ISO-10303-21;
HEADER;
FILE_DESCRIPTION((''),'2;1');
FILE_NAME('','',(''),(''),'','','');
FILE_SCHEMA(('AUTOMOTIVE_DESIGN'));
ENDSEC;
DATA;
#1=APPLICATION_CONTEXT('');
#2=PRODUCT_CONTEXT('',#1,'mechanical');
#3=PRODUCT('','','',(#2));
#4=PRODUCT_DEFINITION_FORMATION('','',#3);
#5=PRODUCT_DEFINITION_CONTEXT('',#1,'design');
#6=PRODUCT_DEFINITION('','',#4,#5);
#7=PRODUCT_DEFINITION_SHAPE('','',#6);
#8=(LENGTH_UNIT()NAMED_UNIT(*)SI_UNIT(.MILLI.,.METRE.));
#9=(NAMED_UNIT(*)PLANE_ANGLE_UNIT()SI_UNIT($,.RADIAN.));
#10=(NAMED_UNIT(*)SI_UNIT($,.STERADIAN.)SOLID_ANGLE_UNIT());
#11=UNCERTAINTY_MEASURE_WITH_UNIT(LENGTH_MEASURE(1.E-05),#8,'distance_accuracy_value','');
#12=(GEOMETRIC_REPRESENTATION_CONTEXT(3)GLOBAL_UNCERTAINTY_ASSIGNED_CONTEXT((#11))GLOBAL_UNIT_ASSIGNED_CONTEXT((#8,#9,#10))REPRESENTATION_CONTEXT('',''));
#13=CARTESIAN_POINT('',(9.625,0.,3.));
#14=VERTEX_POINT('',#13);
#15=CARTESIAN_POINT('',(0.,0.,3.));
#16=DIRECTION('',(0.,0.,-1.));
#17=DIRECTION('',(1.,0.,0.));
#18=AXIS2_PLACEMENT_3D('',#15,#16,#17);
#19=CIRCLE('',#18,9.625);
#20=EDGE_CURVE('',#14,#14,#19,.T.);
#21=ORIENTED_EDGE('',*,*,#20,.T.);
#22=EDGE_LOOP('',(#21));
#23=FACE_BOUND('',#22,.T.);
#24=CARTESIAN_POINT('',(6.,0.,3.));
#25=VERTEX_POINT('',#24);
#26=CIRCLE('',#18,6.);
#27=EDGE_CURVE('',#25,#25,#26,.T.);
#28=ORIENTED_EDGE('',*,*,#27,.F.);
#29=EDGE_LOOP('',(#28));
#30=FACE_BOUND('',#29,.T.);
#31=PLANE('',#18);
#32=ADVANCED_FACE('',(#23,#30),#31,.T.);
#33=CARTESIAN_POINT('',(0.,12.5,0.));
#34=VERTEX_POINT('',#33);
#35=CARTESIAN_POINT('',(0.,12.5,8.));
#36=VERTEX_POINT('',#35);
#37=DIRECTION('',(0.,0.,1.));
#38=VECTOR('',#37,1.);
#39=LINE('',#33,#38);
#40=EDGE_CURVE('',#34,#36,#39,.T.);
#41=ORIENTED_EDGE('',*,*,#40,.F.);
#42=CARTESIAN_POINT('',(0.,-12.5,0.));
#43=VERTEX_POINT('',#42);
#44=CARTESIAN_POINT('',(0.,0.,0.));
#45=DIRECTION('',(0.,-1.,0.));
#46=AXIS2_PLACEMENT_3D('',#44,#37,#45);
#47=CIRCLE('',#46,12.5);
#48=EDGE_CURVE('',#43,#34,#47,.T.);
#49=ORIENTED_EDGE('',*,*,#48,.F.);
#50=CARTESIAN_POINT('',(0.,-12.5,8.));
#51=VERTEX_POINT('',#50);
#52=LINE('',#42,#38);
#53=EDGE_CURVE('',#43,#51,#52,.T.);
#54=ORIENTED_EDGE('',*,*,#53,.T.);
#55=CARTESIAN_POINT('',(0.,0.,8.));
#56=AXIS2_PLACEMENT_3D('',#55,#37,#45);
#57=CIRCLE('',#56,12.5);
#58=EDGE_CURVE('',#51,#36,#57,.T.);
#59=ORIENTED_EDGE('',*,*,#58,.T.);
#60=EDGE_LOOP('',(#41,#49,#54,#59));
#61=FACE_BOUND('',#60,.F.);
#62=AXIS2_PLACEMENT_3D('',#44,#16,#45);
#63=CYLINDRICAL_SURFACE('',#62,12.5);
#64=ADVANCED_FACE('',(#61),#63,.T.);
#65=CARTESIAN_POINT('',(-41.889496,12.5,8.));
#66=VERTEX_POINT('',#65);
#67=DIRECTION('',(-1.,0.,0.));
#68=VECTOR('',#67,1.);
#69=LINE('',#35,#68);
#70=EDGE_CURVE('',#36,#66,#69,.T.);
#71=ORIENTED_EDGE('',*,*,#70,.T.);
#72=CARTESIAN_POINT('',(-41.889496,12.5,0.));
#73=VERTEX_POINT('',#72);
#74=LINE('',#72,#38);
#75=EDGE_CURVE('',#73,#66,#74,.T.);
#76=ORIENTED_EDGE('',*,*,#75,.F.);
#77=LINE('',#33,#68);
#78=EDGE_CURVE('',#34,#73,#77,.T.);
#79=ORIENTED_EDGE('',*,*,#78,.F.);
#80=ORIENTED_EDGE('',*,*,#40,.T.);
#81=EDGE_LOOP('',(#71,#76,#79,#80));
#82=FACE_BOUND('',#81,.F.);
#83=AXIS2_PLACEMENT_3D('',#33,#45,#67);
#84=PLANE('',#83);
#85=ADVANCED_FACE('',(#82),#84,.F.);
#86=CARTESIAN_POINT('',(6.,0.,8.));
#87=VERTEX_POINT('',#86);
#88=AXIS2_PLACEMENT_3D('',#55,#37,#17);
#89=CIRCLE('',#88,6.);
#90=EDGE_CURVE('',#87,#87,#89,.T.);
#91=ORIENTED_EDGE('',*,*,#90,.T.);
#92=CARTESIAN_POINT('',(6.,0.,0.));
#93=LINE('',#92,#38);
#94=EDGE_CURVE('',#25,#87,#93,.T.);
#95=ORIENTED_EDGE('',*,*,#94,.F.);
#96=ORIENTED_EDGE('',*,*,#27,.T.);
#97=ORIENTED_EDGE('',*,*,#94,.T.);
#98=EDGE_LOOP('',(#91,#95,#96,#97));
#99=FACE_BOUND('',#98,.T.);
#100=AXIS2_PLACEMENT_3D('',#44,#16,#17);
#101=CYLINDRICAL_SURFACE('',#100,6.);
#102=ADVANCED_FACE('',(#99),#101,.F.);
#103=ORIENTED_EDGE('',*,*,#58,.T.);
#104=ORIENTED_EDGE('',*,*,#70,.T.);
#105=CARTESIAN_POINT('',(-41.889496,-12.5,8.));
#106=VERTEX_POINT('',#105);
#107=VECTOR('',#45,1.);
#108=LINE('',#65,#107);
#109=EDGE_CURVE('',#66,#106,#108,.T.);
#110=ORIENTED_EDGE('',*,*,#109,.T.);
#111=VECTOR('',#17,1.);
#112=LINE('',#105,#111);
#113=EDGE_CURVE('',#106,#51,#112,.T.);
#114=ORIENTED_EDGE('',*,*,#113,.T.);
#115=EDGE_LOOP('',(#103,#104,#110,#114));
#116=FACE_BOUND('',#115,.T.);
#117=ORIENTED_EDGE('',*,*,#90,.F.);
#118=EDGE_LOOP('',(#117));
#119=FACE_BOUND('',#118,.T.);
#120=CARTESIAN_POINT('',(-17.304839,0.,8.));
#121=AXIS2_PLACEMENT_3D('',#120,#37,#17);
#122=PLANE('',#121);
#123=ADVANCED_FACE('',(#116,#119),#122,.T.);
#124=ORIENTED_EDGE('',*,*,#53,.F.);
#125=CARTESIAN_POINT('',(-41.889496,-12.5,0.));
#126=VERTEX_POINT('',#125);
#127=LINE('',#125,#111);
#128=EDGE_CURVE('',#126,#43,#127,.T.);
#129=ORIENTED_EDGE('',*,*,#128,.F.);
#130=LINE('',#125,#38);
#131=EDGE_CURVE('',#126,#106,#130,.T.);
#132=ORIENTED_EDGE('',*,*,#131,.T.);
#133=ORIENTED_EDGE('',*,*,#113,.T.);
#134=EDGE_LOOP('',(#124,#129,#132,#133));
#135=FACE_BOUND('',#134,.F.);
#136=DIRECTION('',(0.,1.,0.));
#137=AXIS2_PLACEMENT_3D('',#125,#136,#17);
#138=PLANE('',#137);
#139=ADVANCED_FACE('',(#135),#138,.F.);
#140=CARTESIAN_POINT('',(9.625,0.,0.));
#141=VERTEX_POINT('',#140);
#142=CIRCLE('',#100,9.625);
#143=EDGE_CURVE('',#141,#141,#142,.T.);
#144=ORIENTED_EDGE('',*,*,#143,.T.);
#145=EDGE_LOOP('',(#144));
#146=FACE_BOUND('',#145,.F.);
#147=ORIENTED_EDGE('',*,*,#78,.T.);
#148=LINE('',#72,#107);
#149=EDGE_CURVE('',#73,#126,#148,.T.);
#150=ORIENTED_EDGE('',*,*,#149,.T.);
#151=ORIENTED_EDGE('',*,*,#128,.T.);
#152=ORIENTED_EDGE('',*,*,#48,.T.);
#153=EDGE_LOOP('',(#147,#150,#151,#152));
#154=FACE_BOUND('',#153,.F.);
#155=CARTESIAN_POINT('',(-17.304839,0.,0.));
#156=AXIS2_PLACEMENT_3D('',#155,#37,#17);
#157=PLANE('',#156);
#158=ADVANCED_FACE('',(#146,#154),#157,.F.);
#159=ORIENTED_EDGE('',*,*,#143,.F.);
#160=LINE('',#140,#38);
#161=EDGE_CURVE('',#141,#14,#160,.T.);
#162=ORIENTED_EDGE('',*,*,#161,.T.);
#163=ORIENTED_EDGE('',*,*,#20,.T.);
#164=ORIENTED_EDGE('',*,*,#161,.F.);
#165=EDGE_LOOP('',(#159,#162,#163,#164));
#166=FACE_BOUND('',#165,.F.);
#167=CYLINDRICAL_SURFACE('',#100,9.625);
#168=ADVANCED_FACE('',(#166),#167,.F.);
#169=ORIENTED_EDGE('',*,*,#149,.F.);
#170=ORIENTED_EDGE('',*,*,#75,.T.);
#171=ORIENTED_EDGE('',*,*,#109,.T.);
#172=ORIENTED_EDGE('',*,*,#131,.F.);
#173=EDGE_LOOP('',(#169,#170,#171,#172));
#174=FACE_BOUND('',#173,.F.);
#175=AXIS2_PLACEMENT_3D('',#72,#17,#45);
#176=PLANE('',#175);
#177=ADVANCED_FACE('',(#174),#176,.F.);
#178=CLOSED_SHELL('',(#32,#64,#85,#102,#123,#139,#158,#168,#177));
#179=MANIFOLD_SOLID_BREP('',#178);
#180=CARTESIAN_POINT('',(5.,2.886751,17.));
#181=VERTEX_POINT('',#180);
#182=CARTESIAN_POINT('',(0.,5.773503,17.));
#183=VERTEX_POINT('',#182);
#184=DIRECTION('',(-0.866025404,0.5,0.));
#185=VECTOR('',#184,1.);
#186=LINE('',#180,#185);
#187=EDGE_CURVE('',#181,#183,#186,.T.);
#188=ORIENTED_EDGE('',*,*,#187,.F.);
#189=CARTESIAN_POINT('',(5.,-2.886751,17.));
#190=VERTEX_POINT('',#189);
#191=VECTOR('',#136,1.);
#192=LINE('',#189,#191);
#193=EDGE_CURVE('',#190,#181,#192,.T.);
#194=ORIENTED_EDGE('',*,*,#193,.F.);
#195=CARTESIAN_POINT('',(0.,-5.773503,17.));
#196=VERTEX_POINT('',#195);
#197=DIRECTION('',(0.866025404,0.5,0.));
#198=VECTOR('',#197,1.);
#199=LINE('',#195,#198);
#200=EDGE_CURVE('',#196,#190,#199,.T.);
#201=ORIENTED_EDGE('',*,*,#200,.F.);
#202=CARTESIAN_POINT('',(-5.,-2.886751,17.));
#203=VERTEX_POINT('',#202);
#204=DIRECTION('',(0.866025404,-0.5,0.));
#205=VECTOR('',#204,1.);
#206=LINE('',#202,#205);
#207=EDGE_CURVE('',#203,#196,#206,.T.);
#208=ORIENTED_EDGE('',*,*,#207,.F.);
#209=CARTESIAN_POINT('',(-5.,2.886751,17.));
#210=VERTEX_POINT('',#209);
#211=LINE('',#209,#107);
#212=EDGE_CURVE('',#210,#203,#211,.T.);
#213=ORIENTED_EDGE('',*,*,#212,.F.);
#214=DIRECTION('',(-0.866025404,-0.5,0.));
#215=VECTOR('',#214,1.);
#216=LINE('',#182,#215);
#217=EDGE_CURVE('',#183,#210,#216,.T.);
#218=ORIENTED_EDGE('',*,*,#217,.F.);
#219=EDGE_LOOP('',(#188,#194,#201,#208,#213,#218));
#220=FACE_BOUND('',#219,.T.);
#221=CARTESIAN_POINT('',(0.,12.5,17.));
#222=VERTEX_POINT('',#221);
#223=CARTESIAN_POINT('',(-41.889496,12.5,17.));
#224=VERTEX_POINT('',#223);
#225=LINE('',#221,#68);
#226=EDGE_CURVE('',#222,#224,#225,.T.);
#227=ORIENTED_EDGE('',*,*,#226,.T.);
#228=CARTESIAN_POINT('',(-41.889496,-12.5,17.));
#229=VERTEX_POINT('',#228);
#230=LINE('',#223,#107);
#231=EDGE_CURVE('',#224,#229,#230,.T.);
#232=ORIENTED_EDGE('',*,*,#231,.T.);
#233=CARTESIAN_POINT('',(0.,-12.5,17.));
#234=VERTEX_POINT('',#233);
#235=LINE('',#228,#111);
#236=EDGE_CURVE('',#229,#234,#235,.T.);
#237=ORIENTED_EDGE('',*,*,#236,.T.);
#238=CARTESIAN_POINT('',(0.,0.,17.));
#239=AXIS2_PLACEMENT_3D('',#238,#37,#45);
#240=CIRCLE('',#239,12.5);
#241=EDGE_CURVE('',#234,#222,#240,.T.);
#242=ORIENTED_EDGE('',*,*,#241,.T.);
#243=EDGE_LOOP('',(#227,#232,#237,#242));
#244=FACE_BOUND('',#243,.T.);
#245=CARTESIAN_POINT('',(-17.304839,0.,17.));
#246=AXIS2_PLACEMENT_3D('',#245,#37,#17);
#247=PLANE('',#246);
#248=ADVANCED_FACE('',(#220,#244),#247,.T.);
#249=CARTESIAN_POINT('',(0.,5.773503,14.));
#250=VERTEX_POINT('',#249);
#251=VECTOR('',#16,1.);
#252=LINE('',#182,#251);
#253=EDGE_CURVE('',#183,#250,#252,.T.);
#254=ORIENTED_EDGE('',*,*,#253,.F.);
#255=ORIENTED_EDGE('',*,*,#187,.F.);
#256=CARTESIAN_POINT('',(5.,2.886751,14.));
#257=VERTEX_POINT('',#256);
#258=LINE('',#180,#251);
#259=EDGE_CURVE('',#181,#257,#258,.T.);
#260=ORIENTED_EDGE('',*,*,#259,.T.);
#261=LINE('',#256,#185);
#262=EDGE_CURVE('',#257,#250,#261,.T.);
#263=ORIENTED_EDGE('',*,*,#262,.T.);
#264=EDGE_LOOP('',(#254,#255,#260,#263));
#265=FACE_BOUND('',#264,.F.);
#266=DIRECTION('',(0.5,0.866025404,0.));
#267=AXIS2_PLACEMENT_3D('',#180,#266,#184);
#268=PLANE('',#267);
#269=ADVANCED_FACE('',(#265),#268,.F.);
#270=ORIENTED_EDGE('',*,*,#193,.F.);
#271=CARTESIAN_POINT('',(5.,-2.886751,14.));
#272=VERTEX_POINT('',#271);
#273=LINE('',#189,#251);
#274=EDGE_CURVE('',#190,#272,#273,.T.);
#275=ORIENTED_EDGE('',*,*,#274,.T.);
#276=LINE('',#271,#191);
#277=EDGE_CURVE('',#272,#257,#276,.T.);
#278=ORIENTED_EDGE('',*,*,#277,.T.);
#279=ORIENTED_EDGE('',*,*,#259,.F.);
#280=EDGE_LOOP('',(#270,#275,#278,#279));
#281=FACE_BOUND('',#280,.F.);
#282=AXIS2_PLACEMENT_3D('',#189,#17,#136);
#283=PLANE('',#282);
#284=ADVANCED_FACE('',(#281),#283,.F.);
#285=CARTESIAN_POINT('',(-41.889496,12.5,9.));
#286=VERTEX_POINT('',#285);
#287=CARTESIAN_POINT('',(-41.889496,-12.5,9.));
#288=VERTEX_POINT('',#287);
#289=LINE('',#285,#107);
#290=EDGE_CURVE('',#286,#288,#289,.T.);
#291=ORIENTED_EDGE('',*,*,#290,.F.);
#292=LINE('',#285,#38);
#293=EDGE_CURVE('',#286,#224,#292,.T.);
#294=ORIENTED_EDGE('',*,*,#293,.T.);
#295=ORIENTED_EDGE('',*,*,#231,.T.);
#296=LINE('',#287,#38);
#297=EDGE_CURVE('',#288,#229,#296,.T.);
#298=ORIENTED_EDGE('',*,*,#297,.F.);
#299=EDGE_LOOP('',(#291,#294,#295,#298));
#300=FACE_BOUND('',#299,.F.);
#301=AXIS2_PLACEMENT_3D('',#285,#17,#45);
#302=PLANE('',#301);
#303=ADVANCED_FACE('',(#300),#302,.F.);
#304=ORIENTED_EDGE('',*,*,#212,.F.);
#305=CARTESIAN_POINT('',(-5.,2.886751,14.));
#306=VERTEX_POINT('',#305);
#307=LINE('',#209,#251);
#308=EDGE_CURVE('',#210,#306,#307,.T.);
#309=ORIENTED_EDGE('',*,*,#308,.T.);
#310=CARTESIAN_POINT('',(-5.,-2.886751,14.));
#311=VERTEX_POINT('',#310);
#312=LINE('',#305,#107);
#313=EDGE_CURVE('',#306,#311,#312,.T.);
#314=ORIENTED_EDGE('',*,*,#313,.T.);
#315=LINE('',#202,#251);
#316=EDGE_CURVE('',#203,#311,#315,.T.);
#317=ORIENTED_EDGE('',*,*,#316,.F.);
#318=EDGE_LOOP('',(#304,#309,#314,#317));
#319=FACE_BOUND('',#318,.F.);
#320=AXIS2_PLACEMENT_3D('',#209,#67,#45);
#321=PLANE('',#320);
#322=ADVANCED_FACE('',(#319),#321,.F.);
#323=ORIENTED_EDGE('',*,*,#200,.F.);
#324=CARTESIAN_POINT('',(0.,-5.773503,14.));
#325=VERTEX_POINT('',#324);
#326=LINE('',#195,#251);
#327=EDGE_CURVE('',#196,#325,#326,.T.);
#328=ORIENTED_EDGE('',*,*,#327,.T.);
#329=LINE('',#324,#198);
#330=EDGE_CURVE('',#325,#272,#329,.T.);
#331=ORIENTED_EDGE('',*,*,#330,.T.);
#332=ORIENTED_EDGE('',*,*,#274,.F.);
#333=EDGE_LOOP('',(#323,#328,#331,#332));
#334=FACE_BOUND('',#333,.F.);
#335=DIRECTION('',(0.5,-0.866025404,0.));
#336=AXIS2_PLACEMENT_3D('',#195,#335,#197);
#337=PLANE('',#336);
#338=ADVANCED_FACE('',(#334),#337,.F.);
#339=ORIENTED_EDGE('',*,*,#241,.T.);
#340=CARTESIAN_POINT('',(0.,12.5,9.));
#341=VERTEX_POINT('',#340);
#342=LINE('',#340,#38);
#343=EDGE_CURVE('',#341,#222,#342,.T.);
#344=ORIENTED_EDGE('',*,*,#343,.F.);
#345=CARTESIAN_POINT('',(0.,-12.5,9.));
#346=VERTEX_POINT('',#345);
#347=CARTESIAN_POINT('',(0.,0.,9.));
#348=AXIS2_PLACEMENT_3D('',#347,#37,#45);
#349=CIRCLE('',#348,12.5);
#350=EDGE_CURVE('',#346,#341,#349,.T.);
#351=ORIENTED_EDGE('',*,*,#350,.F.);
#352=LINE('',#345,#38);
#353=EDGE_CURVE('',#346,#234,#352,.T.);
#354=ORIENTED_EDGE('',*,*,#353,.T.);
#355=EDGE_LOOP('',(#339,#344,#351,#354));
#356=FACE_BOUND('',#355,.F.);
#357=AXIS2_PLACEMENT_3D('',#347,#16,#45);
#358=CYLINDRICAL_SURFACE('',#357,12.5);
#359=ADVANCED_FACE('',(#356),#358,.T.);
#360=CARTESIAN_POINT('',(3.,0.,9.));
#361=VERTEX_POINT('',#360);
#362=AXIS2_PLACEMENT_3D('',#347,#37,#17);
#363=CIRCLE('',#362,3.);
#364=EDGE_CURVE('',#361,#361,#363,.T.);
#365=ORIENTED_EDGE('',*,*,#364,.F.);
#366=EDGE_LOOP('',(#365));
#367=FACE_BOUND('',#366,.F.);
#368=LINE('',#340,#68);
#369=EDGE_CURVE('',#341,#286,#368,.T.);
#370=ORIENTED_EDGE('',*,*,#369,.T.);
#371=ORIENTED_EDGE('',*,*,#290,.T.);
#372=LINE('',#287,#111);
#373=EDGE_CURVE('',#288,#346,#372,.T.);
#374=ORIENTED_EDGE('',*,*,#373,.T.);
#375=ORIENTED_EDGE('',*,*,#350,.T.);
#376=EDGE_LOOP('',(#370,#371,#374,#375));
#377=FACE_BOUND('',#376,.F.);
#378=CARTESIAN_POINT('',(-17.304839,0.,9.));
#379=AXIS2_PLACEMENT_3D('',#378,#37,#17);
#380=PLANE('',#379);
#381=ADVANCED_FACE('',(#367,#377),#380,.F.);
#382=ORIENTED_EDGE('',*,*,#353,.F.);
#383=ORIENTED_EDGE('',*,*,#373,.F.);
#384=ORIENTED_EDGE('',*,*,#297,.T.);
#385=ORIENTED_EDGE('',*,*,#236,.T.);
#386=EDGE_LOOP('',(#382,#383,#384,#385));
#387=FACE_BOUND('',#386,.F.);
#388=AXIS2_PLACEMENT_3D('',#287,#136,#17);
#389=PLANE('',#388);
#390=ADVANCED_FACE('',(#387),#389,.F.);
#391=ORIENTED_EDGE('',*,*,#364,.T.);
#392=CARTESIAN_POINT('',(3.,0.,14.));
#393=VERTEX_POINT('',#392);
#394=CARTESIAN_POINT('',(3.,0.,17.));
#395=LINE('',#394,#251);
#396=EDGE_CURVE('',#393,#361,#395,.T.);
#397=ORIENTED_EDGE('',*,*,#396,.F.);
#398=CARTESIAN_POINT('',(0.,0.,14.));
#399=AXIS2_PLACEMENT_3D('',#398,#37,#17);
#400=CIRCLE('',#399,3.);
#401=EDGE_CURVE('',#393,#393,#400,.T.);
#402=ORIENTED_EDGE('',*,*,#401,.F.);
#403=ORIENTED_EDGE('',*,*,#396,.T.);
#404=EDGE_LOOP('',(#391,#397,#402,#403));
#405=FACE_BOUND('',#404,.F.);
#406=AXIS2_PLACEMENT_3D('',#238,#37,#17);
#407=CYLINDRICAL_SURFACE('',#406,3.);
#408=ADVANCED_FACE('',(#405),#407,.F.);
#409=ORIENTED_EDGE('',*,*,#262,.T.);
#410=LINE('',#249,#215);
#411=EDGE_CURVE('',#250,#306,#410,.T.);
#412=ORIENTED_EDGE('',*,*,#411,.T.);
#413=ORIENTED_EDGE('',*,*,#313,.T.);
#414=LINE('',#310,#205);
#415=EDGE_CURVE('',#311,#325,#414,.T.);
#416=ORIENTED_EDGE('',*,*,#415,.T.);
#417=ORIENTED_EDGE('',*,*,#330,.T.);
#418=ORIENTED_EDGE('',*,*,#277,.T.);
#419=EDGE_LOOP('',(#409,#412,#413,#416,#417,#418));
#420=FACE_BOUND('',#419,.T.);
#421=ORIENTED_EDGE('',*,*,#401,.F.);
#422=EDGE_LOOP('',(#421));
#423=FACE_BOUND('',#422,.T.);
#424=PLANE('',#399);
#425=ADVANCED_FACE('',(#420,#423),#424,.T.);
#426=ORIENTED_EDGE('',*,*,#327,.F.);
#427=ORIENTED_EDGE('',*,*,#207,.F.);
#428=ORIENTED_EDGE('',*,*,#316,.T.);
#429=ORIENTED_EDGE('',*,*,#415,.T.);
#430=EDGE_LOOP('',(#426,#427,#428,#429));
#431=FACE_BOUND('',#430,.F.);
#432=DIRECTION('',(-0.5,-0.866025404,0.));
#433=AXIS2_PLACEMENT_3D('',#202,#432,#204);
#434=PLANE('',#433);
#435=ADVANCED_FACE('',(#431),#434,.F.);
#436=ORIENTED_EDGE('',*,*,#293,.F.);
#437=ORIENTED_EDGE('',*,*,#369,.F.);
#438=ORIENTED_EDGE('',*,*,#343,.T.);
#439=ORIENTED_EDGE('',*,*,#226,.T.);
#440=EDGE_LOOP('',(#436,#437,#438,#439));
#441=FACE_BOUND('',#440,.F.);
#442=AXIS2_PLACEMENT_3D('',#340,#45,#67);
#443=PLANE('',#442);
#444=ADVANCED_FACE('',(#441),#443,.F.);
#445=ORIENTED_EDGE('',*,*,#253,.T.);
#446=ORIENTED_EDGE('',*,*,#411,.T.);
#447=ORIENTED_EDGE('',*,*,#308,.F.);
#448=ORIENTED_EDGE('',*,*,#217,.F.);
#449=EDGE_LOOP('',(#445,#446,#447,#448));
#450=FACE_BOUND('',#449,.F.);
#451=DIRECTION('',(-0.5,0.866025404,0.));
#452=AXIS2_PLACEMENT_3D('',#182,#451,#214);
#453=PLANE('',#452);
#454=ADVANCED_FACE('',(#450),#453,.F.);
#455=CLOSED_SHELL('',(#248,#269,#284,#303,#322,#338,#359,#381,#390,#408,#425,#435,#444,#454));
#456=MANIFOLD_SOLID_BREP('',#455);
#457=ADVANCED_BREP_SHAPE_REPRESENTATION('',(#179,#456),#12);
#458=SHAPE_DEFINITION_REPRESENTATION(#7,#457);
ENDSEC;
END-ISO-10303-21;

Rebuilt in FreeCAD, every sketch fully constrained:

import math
import FreeCAD as App
import Part
import Sketcher
Q = App.Units.Quantity


def add_polygon(sketch, points):
    """Adds a closed chain of lines whose ends are joined by coincident constraints."""
    first, n = sketch.GeometryCount, len(points)
    for a, b in zip(points, points[1:] + points[:1]):
        sketch.addGeometry(Part.LineSegment(App.Vector(*a, 0), App.Vector(*b, 0)), False)
    for i in range(n):
        sketch.addConstraint(Sketcher.Constraint("Coincident", first + i, 2, first + (i + 1) % n, 1))

doc = App.newDocument("Part")
body = doc.addObject("PartDesign::Body", "Body")

sketch1 = body.newObject("Sketcher::SketchObject", "Sketch")
sketch1.AttachmentSupport = (doc.getObject("XY_Plane"), [""])
sketch1.MapMode = "FlatFace"
sketch1.addGeometry(Part.LineSegment(App.Vector(-41.889496, -12.5, 0), App.Vector(0, -12.5, 0)), False)
sketch1.addGeometry(Part.ArcOfCircle(Part.Circle(App.Vector(0, 0, 0), App.Vector(0, 0, 1), 12.5), math.radians(-90), math.radians(90)), False)
sketch1.addGeometry(Part.LineSegment(App.Vector(0, 12.5, 0), App.Vector(-41.889496, 12.5, 0)), False)
sketch1.addGeometry(Part.LineSegment(App.Vector(-41.889496, 12.5, 0), App.Vector(-41.889496, -12.5, 0)), False)
sketch1.addGeometry(Part.Circle(App.Vector(0, 0, 0), App.Vector(0, 0, 1), 6), False)
sketch1.addConstraint(Sketcher.Constraint("Tangent", 0, 2, 1, 1))
sketch1.addConstraint(Sketcher.Constraint("Tangent", 1, 2, 2, 1))
sketch1.addConstraint(Sketcher.Constraint("Coincident", 2, 2, 3, 1))
sketch1.addConstraint(Sketcher.Constraint("Coincident", 3, 2, 0, 1))
sketch1.addConstraint(Sketcher.Constraint("Horizontal", 0))
sketch1.addConstraint(Sketcher.Constraint("Horizontal", 2))
sketch1.addConstraint(Sketcher.Constraint("Vertical", 3))
sketch1.addConstraint(Sketcher.Constraint("Coincident", 1, 3, -1, 1))
sketch1.addConstraint(Sketcher.Constraint("Coincident", 4, 3, -1, 1))
sketch1.addConstraint(Sketcher.Constraint("Diameter", 4, Q("12 mm")))
sketch1.addConstraint(Sketcher.Constraint("Radius", 1, Q("12.5 mm")))
sketch1.addConstraint(Sketcher.Constraint("DistanceX", 0, 1, 0, 2, Q("41.889496 mm")))
pad1 = body.newObject("PartDesign::Pad", "Pad")
pad1.Profile = sketch1
pad1.Length = 8

sketch2 = body.newObject("Sketcher::SketchObject", "Sketch001")
sketch2.AttachmentSupport = (doc.getObject("XY_Plane"), [""])
sketch2.MapMode = "FlatFace"
sketch2.addGeometry(Part.Circle(App.Vector(0, 0, 0), App.Vector(0, 0, 1), 9.625), False)
sketch2.addConstraint(Sketcher.Constraint("Coincident", 0, 3, -1, 1))
sketch2.addConstraint(Sketcher.Constraint("Diameter", 0, Q("19.25 mm")))
pocket1 = body.newObject("PartDesign::Pocket", "Pocket")
pocket1.Profile = sketch2
pocket1.Length = 3
pocket1.Reversed = True
body2 = doc.addObject("PartDesign::Body", "Body001")

sketch3 = body2.newObject("Sketcher::SketchObject", "Sketch002")
sketch3.AttachmentSupport = (doc.getObject("XY_Plane001"), [""])
sketch3.MapMode = "FlatFace"
sketch3.AttachmentOffset = App.Placement(App.Vector(0, 0, 9), App.Rotation())
sketch3.addGeometry(Part.ArcOfCircle(Part.Circle(App.Vector(0, 0, 0), App.Vector(0, 0, 1), 12.5), math.radians(-90), math.radians(90)), False)
sketch3.addGeometry(Part.LineSegment(App.Vector(0, 12.5, 0), App.Vector(-41.889496, 12.5, 0)), False)
sketch3.addGeometry(Part.LineSegment(App.Vector(-41.889496, 12.5, 0), App.Vector(-41.889496, -12.5, 0)), False)
sketch3.addGeometry(Part.LineSegment(App.Vector(-41.889496, -12.5, 0), App.Vector(0, -12.5, 0)), False)
sketch3.addConstraint(Sketcher.Constraint("Tangent", 0, 2, 1, 1))
sketch3.addConstraint(Sketcher.Constraint("Coincident", 1, 2, 2, 1))
sketch3.addConstraint(Sketcher.Constraint("Coincident", 2, 2, 3, 1))
sketch3.addConstraint(Sketcher.Constraint("Tangent", 3, 2, 0, 1))
sketch3.addConstraint(Sketcher.Constraint("Horizontal", 1))
sketch3.addConstraint(Sketcher.Constraint("Vertical", 2))
sketch3.addConstraint(Sketcher.Constraint("Horizontal", 3))
sketch3.addConstraint(Sketcher.Constraint("Coincident", 0, 3, -1, 1))
sketch3.addConstraint(Sketcher.Constraint("Radius", 0, Q("12.5 mm")))
sketch3.addConstraint(Sketcher.Constraint("DistanceX", 1, 2, 1, 1, Q("41.889496 mm")))
pad2 = body2.newObject("PartDesign::Pad", "Pad001")
pad2.Profile = sketch3
pad2.Length = 8

sketch4 = body2.newObject("Sketcher::SketchObject", "Sketch003")
sketch4.AttachmentSupport = (doc.getObject("XY_Plane001"), [""])
sketch4.MapMode = "FlatFace"
sketch4.AttachmentOffset = App.Placement(App.Vector(0, 0, 17), App.Rotation())
sketch4.addGeometry(Part.Circle(App.Vector(0, 0, 0), App.Vector(0, 0, 1), 3), False)
sketch4.addConstraint(Sketcher.Constraint("Coincident", 0, 3, -1, 1))
sketch4.addConstraint(Sketcher.Constraint("Diameter", 0, Q("6 mm")))
pocket2 = body2.newObject("PartDesign::Pocket", "Pocket001")
pocket2.Profile = sketch4
pocket2.Type = "ThroughAll"

sketch5 = body2.newObject("Sketcher::SketchObject", "Sketch004")
sketch5.AttachmentSupport = (doc.getObject("XY_Plane001"), [""])
sketch5.MapMode = "FlatFace"
sketch5.AttachmentOffset = App.Placement(App.Vector(0, 0, 17), App.Rotation())
add_polygon(sketch5, [(5, -2.886751), (5, 2.886751), (0, 5.773503), (-5, 2.886751), (-5, -2.886751), (0, -5.773503)])
sketch5.addConstraint(Sketcher.Constraint("Vertical", 0))
sketch5.addConstraint(Sketcher.Constraint("Vertical", 3))
sketch5.addConstraint(Sketcher.Constraint("Symmetric", 0, 2, 3, 2, -1, 1))
sketch5.addConstraint(Sketcher.Constraint("Symmetric", 1, 2, 4, 2, -1, 1))
sketch5.addConstraint(Sketcher.Constraint("PointOnObject", 1, 2, -2))
sketch5.addConstraint(Sketcher.Constraint("Parallel", 2, 5))
sketch5.addConstraint(Sketcher.Constraint("Horizontal", 0, 2, 2, 2))
sketch5.addConstraint(Sketcher.Constraint("Angle", 1, Q("150 deg")))
sketch5.addConstraint(Sketcher.Constraint("DistanceX", -1, 1, 0, 2, Q("5 mm")))
sketch5.addConstraint(Sketcher.Constraint("DistanceY", 0, 1, 0, 2, Q("5.773503 mm")))
pocket3 = body2.newObject("PartDesign::Pocket", "Pocket002")
pocket3.Profile = sketch5
pocket3.Length = 3

doc.recompute()
